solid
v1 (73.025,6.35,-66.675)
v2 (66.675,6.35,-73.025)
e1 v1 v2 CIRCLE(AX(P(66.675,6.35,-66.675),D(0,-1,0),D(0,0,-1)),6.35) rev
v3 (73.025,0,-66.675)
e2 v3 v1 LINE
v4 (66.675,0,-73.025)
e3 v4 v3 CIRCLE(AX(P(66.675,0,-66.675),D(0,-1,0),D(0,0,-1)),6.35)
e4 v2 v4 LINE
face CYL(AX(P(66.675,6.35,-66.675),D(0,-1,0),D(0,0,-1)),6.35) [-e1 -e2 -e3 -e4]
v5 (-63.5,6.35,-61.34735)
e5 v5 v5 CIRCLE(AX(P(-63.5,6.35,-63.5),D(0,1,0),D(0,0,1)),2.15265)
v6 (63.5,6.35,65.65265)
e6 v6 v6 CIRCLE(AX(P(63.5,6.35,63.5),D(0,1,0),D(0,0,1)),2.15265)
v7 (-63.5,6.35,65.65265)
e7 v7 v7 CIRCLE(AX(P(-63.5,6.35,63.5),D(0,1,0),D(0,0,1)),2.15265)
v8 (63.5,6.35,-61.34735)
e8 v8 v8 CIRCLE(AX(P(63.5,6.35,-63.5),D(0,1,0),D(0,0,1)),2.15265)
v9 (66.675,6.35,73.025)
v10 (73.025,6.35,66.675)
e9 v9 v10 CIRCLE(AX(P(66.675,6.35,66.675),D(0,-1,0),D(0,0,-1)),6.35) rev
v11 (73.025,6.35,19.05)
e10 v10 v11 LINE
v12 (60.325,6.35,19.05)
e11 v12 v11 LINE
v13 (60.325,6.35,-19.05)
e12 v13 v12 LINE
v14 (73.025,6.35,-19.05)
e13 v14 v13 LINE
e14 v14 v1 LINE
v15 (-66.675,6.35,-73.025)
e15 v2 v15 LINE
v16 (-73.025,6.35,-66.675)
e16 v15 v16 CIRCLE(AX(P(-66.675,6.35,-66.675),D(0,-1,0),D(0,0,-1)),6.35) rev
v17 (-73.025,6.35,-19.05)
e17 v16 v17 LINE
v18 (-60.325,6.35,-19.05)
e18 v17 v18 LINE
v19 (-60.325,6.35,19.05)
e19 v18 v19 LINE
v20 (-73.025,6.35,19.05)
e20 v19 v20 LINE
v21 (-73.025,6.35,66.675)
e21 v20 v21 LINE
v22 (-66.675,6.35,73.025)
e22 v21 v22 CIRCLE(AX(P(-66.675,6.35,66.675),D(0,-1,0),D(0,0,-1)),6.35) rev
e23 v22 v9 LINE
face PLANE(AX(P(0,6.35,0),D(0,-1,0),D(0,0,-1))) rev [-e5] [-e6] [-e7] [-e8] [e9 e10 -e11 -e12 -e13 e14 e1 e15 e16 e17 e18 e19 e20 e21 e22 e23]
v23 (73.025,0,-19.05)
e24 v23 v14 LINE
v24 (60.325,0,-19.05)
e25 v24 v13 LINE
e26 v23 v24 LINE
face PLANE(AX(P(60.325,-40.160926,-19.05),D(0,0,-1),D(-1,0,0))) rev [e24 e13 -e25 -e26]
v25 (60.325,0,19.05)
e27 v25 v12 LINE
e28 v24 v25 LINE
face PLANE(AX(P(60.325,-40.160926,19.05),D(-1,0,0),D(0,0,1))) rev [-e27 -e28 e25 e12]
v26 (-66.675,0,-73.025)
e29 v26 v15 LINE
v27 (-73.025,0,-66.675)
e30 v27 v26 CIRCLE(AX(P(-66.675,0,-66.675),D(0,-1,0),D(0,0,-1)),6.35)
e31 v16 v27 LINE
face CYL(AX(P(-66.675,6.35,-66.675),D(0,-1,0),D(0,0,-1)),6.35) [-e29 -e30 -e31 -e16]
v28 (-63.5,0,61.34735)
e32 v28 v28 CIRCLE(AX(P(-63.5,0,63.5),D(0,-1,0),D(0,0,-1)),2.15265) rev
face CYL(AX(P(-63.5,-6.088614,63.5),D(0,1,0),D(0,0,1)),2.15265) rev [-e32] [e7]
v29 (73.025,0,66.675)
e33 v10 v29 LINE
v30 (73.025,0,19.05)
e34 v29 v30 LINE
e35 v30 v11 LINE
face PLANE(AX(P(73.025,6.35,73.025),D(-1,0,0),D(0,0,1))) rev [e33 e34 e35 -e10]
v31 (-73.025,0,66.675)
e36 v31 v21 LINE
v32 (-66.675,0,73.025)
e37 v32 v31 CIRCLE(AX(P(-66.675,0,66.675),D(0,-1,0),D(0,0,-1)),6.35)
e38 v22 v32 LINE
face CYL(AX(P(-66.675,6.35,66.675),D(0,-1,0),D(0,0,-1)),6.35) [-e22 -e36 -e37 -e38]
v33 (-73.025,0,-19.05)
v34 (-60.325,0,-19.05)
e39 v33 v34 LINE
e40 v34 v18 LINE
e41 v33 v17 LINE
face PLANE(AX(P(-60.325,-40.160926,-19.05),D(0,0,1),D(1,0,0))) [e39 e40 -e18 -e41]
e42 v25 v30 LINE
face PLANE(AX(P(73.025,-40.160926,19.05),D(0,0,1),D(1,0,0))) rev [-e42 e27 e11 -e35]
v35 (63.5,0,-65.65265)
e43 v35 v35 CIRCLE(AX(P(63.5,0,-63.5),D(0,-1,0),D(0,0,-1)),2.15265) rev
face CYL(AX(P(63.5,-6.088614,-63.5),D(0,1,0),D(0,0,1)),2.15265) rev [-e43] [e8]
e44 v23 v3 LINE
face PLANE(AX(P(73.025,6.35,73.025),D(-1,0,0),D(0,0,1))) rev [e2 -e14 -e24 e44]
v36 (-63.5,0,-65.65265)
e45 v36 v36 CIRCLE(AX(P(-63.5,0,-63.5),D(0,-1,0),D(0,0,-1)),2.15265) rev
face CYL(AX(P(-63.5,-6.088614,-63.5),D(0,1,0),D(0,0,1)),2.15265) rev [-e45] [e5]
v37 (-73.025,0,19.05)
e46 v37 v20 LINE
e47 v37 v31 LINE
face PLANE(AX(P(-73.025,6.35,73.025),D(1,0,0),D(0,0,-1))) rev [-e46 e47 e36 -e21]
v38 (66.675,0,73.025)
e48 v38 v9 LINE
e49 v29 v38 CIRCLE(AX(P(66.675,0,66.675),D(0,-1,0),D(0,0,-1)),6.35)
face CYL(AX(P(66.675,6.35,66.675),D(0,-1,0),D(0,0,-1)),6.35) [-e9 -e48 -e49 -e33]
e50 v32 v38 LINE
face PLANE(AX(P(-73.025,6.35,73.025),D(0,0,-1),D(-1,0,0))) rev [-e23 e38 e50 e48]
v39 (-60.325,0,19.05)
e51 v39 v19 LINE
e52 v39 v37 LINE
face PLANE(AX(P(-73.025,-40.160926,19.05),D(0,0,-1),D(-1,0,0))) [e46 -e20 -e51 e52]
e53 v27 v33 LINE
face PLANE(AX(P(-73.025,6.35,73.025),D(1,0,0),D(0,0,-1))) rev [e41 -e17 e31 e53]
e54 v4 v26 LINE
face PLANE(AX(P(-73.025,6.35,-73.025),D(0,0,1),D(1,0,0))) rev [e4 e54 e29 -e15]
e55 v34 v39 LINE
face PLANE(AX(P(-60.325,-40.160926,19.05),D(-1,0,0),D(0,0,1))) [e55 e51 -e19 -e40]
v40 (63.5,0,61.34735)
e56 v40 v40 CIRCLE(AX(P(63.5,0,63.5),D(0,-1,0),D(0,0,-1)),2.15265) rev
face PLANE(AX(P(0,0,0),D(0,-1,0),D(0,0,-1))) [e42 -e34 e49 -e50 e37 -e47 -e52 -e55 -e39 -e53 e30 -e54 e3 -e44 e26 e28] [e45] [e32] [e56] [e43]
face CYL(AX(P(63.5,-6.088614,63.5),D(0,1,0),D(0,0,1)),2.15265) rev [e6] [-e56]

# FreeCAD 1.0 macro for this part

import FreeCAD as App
import Part
import Sketcher

V = App.Vector
Q = App.Units.Quantity


def edges_at(feature, points):
    """Names of the edges that pass closest to the given points."""
    edges = feature.Shape.Edges
    near = lambda p: min(range(len(edges)), key=lambda i: edges[i].distToShape(Part.Vertex(*p))[0])
    return sorted({f"Edge{near(p) + 1}" for p in points})


def add_polygon(sketch, points):
    """Adds a closed chain of lines whose ends are joined by coincident constraints."""
    first, n = sketch.GeometryCount, len(points)
    for a, b in zip(points, points[1:] + points[:1]):
        sketch.addGeometry(Part.LineSegment(App.Vector(*a, 0), App.Vector(*b, 0)), False)
    for i in range(n):
        sketch.addConstraint(Sketcher.Constraint("Coincident", first + i, 2, first + (i + 1) % n, 1))

doc = App.newDocument("Part")
body = doc.addObject("PartDesign::Body", "Body")

# Sketch on XZ plane
sketch1 = body.newObject("Sketcher::SketchObject", "Sketch")
sketch1.AttachmentSupport = (doc.getObject("XZ_Plane"), [""])
sketch1.MapMode = "FlatFace"
add_polygon(sketch1, [(-73, -73), (-73, 73), (73, 73), (73, -73)])  # lines 0-3
sketch1.addConstraint([
    Sketcher.Constraint("Vertical", 0),
    Sketcher.Constraint("Horizontal", 1),
    Sketcher.Constraint("Vertical", 2),
    Sketcher.Constraint("Horizontal", 3),
    Sketcher.Constraint("Symmetric", 0, 2, 2, 2, -1, 1),
    Sketcher.Constraint("Equal", 3, 0),
    Sketcher.Constraint("DistanceX", 1, 1, 1, 2, Q("5.75 in")),
])
pad1 = body.newObject("PartDesign::Pad", "Pad")
pad1.Profile = sketch1
pad1.Length = Q("0.25 in")
pad1.Reversed = True

# Sketch on XZ plane
sketch2 = body.newObject("Sketcher::SketchObject", "Sketch001")
sketch2.AttachmentSupport = (doc.getObject("XZ_Plane"), [""])
sketch2.MapMode = "FlatFace"
sketch2.AttachmentOffset = App.Placement(V(0, 0, -0.25 * 25.4), App.Rotation())
sketch2.addGeometry([
    Part.Circle(V(-63.5, -63.5, 0), V(0, 0, 1), 2.2),
    Part.Circle(V(63.5, -63.5, 0), V(0, 0, 1), 2.2),
    Part.Circle(V(63.5, 63.5, 0), V(0, 0, 1), 2.2),
    Part.Circle(V(-63.5, 63.5, 0), V(0, 0, 1), 2.2),
], False)
sketch2.addConstraint([
    Sketcher.Constraint("Equal", 0, 1),
    Sketcher.Constraint("Equal", 1, 2),
    Sketcher.Constraint("Equal", 2, 3),
    Sketcher.Constraint("Symmetric", 0, 3, 2, 3, -1, 1),
    Sketcher.Constraint("Symmetric", 1, 3, 3, 3, -1, 1),
    Sketcher.Constraint("Symmetric", 0, 3, 1, 3, -2),
    Sketcher.Constraint("DistanceX", 0, 3, 1, 3, Q("5 in")),
    Sketcher.Constraint("DistanceY", 1, 3, 2, 3, Q("5 in")),
    Sketcher.Constraint("Diameter", 0, Q("0.1695 in")),
])
pocket1 = body.newObject("PartDesign::Pocket", "Pocket")
pocket1.Profile = sketch2
pocket1.Length = Q("0.25 in")
pocket1.Reversed = True
doc.recompute()

fillet = body.newObject("PartDesign::Fillet", "Fillet")
fillet.Base = (pocket1, edges_at(pocket1, [
    (73.025, 3.175, 73.025),
    (-73.025, 3.175, 73.025),
    (-73.025, 3.175, -73.025),
    (73.025, 3.175, -73.025),
]))
fillet.Radius = Q("0.25 in")

# Sketch on XZ plane
sketch3 = body.newObject("Sketcher::SketchObject", "Sketch002")
sketch3.AttachmentSupport = (doc.getObject("XZ_Plane"), [""])
sketch3.MapMode = "FlatFace"
sketch3.AttachmentOffset = App.Placement(V(0, 0, -0.25 * 25.4), App.Rotation())
add_polygon(sketch3, [(60, -19), (60, 19), (73, 19), (73, -19)])  # lines 0-3
sketch3.addConstraint([
    Sketcher.Constraint("Vertical", 0),
    Sketcher.Constraint("Horizontal", 1),
    Sketcher.Constraint("Vertical", 2),
    Sketcher.Constraint("Horizontal", 3),
    Sketcher.Constraint("DistanceX", 1, 1, 1, 2, Q("0.5 in")),
    Sketcher.Constraint("DistanceY", 0, 1, 0, 2, Q("1.5 in")),
    Sketcher.Constraint("DistanceY", -1, 1, 0, 2, Q("0.75 in")),
    Sketcher.Constraint("DistanceX", -1, 1, 0, 2, Q("2.375 in")),
])
pocket2 = body.newObject("PartDesign::Pocket", "Pocket001")
pocket2.Profile = sketch3
pocket2.Length = Q("0.25 in")
pocket2.Reversed = True
doc.recompute()

mirrored = body.newObject("PartDesign::Mirrored", "Mirrored")
mirrored.Originals = [pocket2]
mirrored.MirrorPlane = (doc.getObject("YZ_Plane"), [""])
body.Tip = mirrored

doc.recompute()
